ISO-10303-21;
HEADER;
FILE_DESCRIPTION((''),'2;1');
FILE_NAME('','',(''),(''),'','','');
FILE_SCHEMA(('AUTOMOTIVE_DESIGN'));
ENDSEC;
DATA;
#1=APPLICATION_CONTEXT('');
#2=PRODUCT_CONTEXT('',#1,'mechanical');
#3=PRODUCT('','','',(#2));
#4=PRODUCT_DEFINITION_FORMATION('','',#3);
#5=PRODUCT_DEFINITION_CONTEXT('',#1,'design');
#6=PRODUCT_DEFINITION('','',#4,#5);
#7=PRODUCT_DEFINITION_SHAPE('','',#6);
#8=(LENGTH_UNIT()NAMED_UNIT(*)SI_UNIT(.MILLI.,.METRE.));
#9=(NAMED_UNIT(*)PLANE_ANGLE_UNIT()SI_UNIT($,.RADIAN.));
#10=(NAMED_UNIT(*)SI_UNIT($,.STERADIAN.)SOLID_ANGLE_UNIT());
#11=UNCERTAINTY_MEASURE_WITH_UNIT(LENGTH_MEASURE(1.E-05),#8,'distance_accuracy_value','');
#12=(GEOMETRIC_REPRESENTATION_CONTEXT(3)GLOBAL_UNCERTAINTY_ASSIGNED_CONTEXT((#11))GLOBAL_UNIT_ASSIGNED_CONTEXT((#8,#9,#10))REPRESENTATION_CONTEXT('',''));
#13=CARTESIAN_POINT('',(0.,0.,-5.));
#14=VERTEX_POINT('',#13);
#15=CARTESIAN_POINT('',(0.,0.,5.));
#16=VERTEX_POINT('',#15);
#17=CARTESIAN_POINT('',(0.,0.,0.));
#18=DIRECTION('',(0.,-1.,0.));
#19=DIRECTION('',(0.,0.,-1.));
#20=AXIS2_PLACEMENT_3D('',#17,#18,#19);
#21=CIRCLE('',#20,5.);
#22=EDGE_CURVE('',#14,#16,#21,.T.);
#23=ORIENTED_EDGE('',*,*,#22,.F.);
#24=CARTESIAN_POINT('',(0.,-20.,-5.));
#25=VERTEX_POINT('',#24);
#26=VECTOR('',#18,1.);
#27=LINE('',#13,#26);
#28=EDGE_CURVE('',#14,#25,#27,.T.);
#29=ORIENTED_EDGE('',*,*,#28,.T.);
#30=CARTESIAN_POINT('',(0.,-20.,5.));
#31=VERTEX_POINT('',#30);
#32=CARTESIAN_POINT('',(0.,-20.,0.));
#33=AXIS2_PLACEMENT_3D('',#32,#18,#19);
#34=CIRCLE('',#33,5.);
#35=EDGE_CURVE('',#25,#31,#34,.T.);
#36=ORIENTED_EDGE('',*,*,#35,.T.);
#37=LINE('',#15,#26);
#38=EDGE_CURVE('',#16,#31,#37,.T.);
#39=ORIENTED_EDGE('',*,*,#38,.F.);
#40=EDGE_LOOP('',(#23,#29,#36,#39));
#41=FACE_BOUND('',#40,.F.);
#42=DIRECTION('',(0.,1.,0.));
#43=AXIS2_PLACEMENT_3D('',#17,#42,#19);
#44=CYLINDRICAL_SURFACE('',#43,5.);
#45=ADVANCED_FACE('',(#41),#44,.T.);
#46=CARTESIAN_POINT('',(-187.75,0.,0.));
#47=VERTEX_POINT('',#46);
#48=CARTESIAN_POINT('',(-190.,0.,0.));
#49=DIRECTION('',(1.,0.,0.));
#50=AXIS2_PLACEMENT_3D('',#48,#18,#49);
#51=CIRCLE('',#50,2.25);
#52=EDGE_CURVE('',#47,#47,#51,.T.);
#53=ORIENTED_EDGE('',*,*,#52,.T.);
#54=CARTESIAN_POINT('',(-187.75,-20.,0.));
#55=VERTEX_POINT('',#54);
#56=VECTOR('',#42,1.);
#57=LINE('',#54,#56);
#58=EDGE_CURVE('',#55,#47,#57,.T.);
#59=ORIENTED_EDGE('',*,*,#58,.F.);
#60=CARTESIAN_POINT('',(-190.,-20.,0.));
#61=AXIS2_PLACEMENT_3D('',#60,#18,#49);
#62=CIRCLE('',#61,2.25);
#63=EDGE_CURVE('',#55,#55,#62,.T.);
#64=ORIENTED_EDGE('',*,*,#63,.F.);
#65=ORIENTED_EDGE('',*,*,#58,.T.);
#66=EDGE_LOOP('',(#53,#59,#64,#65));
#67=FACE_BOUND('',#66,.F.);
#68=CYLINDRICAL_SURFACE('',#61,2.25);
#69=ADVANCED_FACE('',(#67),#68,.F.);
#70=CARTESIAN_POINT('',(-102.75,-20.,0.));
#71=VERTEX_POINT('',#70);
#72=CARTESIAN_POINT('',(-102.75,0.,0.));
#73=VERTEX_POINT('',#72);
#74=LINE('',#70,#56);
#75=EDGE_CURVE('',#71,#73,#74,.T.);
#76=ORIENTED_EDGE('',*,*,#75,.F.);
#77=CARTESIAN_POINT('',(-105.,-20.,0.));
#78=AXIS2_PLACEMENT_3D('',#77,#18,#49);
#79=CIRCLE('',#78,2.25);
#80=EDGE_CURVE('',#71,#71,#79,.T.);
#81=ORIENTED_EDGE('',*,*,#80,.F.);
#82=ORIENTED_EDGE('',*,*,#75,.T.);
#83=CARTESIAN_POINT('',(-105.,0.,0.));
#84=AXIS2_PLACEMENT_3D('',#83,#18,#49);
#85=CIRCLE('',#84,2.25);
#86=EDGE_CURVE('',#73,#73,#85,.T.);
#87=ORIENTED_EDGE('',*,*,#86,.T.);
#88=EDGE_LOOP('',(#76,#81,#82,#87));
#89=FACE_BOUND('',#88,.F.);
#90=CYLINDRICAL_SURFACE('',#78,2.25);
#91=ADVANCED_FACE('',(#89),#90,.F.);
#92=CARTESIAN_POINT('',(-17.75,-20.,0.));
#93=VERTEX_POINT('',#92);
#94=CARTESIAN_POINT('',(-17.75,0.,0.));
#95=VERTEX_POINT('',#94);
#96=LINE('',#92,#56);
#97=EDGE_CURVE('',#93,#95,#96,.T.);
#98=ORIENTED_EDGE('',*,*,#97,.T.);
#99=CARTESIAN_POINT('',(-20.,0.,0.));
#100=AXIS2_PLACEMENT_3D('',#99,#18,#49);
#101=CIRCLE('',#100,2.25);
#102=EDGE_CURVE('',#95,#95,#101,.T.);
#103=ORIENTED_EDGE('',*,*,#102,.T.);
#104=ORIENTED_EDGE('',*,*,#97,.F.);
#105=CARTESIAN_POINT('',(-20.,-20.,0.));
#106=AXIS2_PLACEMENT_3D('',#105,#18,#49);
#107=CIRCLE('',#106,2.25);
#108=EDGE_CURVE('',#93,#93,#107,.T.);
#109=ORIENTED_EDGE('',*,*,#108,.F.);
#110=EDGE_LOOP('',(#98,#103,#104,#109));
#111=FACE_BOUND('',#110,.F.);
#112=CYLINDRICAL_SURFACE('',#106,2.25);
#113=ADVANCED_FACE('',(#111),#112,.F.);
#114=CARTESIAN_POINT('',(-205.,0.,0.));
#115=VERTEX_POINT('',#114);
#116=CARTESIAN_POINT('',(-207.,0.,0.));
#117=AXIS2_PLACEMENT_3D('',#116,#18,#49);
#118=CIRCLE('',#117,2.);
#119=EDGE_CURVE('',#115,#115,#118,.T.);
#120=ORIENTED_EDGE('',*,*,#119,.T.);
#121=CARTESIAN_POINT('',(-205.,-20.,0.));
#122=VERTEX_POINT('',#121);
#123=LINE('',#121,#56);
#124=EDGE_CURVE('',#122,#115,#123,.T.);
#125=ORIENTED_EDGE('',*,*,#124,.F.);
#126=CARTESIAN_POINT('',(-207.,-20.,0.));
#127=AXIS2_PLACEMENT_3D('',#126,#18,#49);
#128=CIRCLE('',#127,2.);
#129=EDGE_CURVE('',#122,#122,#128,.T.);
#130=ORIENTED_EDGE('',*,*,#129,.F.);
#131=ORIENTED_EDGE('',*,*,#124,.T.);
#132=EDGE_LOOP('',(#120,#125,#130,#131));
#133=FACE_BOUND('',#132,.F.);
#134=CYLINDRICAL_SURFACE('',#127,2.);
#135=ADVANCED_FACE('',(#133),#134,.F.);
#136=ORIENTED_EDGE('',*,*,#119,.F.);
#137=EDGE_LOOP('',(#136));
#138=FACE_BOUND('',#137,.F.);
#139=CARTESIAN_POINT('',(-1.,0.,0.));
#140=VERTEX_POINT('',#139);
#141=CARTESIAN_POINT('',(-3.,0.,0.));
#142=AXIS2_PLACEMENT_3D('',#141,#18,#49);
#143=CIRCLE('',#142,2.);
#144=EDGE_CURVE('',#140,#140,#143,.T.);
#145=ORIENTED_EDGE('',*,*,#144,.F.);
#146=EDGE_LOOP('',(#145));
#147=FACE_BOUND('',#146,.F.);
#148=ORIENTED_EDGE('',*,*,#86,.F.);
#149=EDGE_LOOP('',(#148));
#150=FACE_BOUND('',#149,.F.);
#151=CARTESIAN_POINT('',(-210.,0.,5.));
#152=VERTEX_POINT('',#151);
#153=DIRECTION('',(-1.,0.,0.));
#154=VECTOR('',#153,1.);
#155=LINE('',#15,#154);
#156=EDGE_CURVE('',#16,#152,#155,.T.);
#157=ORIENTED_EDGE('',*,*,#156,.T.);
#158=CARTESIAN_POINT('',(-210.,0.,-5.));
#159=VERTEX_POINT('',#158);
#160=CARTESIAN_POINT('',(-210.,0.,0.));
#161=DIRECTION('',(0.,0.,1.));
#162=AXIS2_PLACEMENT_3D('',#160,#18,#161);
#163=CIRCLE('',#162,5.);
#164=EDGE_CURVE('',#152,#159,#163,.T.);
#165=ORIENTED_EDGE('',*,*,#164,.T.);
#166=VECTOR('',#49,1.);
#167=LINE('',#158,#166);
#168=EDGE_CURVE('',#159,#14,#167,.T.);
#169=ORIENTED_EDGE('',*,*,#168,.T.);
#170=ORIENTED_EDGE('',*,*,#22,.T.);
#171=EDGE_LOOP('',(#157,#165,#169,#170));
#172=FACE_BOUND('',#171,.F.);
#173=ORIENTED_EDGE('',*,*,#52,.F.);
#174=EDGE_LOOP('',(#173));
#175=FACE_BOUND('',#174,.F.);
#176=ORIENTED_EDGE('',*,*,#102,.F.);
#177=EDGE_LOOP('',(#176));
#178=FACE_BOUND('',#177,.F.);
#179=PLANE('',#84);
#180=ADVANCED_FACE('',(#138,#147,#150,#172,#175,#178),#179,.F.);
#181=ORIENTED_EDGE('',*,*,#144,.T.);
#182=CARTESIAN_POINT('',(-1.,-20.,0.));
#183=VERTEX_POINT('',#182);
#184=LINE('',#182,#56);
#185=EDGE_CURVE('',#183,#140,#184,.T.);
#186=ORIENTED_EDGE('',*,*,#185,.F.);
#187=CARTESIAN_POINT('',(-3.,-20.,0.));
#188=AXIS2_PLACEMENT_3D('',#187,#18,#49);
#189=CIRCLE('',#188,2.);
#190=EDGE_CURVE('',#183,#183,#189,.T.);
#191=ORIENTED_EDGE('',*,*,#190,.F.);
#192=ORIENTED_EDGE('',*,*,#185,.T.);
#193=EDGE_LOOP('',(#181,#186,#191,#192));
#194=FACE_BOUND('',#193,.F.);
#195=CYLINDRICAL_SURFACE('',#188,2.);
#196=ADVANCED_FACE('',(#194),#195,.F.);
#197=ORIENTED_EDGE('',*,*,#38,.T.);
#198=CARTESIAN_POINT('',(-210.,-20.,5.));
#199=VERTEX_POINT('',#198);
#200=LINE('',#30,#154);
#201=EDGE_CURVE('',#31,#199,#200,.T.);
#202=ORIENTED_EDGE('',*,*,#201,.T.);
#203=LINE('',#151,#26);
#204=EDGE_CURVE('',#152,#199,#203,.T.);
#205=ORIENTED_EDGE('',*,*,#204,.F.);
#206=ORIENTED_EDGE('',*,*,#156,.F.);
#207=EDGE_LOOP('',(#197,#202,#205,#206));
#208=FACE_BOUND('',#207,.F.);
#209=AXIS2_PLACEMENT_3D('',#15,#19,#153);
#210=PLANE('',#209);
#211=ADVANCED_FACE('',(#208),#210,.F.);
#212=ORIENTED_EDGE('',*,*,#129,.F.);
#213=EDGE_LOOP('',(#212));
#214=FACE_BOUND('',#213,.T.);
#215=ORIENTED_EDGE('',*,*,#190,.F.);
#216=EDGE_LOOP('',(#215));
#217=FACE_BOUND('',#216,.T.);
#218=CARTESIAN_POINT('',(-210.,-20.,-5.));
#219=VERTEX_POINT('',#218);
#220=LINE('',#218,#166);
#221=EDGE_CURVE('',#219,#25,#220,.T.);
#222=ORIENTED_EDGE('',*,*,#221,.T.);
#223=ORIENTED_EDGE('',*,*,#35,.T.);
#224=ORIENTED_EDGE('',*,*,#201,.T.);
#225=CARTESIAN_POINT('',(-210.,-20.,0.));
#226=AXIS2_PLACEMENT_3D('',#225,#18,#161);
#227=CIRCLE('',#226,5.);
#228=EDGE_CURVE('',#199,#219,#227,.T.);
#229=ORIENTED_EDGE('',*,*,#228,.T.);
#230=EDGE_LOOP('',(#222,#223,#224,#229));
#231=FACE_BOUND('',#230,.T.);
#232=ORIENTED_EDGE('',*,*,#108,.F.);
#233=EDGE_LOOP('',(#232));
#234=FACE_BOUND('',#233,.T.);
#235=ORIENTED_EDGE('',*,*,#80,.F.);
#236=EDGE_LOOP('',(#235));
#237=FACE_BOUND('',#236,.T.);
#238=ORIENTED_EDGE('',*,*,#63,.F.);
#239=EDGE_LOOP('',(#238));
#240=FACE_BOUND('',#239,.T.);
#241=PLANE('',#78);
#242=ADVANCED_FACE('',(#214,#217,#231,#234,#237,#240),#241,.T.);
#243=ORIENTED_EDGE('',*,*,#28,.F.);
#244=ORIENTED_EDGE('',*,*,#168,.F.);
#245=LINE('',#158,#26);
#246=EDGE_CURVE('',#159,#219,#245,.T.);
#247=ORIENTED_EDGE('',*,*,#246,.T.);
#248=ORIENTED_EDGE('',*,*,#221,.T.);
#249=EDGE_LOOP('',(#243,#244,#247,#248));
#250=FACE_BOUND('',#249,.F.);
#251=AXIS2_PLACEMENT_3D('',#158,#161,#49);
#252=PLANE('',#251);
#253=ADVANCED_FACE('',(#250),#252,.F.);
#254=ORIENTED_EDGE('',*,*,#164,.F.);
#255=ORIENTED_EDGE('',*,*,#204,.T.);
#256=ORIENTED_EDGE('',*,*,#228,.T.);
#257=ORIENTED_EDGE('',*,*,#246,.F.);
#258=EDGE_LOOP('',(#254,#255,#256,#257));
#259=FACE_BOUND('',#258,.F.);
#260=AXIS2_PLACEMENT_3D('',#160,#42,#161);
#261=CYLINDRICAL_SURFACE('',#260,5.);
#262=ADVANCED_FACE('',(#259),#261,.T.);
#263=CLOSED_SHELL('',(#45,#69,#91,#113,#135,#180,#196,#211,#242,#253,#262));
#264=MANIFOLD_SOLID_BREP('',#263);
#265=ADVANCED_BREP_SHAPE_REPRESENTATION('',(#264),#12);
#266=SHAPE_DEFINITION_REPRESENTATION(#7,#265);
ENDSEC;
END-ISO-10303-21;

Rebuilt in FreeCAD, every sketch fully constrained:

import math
import FreeCAD as App
import Part
import Sketcher

doc = App.newDocument("Part")
params = doc.addObject("Spreadsheet::Sheet", "Params")
for row, (alias, value) in enumerate([
    ("sketch1_radius", "5 mm"),
    ("sketch1_width", "210 mm"),
    ("pad1_length", "20 mm"),
    ("sketch2_diameter", "4 mm"),
    ("sketch2_diameter2", "4.5 mm"),
], start=1):
    params.set(f"A{row}", alias)
    params.set(f"B{row}", "=" + value)
    params.setAlias(f"B{row}", alias)

body = doc.addObject("PartDesign::Body", "Body")

# Sketch on XZ plane
sketch1 = body.newObject("Sketcher::SketchObject", "Sketch")
sketch1.AttachmentSupport = (doc.getObject("XZ_Plane"), [""])
sketch1.MapMode = "FlatFace"
sketch1.addGeometry([
    Part.LineSegment(App.Vector(-210, -5, 0), App.Vector(0, -5, 0)),
    Part.ArcOfCircle(Part.Circle(App.Vector(0, 0, 0), App.Vector(0, 0, 1), 5), math.radians(-90), math.radians(90)),
    Part.LineSegment(App.Vector(0, 5, 0), App.Vector(-210, 5, 0)),
    Part.ArcOfCircle(Part.Circle(App.Vector(-210, 0, 0), App.Vector(0, 0, 1), 5), math.radians(90), math.radians(270)),
], False)
sketch1.addConstraint([
    Sketcher.Constraint("Tangent", 0, 2, 1, 1),
    Sketcher.Constraint("Tangent", 1, 2, 2, 1),
    Sketcher.Constraint("Tangent", 2, 2, 3, 1),
    Sketcher.Constraint("Tangent", 3, 2, 0, 1),
    Sketcher.Constraint("Horizontal", 0),
    Sketcher.Constraint("Horizontal", 2),
    Sketcher.Constraint("Coincident", 1, 3, -1, 1),
    Sketcher.Constraint("Radius", 1, 5.0),
    Sketcher.Constraint("DistanceX", 0, 1, 0, 2, 210.0),
])
sketch1.setExpression("Constraints[7]", "Params.sketch1_radius")
sketch1.setExpression("Constraints[8]", "Params.sketch1_width")
pad1 = body.newObject("PartDesign::Pad", "Pad")
pad1.Profile = sketch1
pad1.setExpression("Length", "Params.pad1_length")

# Sketch on XZ plane
sketch2 = body.newObject("Sketcher::SketchObject", "Sketch001")
sketch2.AttachmentSupport = (doc.getObject("XZ_Plane"), [""])
sketch2.MapMode = "FlatFace"
sketch2.AttachmentOffset = App.Placement(App.Vector(0, 0, 20), App.Rotation())
sketch2.addGeometry([
    Part.Circle(App.Vector(-190, 0, 0), App.Vector(0, 0, 1), 2.2),  # 0
    Part.Circle(App.Vector(-20, 0, 0), App.Vector(0, 0, 1), 2.2),  # 1
    Part.Circle(App.Vector(-105, 0, 0), App.Vector(0, 0, 1), 2.2),  # 2
    Part.Circle(App.Vector(-207, 0, 0), App.Vector(0, 0, 1), 2),  # 3
    Part.Circle(App.Vector(-3, 0, 0), App.Vector(0, 0, 1), 2),  # 4
], False)
sketch2.addConstraint([
    Sketcher.Constraint("Equal", 0, 1),
    Sketcher.Constraint("Equal", 1, 2),
    Sketcher.Constraint("Equal", 3, 4),
    Sketcher.Constraint("PointOnObject", 0, 3, -1),
    Sketcher.Constraint("PointOnObject", 1, 3, -1),
    Sketcher.Constraint("PointOnObject", 2, 3, -1),
    Sketcher.Constraint("PointOnObject", 3, 3, -1),
    Sketcher.Constraint("PointOnObject", 4, 3, -1),
    Sketcher.Constraint("Diameter", 3, 4.0),
    Sketcher.Constraint("Diameter", 0, 4.5),
    Sketcher.Constraint("DistanceX", 0, 3, -1, 1, 190.0),
    Sketcher.Constraint("DistanceX", 1, 3, -1, 1, 20.0),
    Sketcher.Constraint("DistanceX", 2, 3, -1, 1, 105.0),
    Sketcher.Constraint("DistanceX", 3, 3, -1, 1, 207.0),
    Sketcher.Constraint("DistanceX", 4, 3, -1, 1, 3.0),
])
sketch2.setExpression("Constraints[8]", "Params.sketch2_diameter")
sketch2.setExpression("Constraints[9]", "Params.sketch2_diameter2")
pocket1 = body.newObject("PartDesign::Pocket", "Pocket")
pocket1.Profile = sketch2
pocket1.Type = "ThroughAll"

doc.recompute()
